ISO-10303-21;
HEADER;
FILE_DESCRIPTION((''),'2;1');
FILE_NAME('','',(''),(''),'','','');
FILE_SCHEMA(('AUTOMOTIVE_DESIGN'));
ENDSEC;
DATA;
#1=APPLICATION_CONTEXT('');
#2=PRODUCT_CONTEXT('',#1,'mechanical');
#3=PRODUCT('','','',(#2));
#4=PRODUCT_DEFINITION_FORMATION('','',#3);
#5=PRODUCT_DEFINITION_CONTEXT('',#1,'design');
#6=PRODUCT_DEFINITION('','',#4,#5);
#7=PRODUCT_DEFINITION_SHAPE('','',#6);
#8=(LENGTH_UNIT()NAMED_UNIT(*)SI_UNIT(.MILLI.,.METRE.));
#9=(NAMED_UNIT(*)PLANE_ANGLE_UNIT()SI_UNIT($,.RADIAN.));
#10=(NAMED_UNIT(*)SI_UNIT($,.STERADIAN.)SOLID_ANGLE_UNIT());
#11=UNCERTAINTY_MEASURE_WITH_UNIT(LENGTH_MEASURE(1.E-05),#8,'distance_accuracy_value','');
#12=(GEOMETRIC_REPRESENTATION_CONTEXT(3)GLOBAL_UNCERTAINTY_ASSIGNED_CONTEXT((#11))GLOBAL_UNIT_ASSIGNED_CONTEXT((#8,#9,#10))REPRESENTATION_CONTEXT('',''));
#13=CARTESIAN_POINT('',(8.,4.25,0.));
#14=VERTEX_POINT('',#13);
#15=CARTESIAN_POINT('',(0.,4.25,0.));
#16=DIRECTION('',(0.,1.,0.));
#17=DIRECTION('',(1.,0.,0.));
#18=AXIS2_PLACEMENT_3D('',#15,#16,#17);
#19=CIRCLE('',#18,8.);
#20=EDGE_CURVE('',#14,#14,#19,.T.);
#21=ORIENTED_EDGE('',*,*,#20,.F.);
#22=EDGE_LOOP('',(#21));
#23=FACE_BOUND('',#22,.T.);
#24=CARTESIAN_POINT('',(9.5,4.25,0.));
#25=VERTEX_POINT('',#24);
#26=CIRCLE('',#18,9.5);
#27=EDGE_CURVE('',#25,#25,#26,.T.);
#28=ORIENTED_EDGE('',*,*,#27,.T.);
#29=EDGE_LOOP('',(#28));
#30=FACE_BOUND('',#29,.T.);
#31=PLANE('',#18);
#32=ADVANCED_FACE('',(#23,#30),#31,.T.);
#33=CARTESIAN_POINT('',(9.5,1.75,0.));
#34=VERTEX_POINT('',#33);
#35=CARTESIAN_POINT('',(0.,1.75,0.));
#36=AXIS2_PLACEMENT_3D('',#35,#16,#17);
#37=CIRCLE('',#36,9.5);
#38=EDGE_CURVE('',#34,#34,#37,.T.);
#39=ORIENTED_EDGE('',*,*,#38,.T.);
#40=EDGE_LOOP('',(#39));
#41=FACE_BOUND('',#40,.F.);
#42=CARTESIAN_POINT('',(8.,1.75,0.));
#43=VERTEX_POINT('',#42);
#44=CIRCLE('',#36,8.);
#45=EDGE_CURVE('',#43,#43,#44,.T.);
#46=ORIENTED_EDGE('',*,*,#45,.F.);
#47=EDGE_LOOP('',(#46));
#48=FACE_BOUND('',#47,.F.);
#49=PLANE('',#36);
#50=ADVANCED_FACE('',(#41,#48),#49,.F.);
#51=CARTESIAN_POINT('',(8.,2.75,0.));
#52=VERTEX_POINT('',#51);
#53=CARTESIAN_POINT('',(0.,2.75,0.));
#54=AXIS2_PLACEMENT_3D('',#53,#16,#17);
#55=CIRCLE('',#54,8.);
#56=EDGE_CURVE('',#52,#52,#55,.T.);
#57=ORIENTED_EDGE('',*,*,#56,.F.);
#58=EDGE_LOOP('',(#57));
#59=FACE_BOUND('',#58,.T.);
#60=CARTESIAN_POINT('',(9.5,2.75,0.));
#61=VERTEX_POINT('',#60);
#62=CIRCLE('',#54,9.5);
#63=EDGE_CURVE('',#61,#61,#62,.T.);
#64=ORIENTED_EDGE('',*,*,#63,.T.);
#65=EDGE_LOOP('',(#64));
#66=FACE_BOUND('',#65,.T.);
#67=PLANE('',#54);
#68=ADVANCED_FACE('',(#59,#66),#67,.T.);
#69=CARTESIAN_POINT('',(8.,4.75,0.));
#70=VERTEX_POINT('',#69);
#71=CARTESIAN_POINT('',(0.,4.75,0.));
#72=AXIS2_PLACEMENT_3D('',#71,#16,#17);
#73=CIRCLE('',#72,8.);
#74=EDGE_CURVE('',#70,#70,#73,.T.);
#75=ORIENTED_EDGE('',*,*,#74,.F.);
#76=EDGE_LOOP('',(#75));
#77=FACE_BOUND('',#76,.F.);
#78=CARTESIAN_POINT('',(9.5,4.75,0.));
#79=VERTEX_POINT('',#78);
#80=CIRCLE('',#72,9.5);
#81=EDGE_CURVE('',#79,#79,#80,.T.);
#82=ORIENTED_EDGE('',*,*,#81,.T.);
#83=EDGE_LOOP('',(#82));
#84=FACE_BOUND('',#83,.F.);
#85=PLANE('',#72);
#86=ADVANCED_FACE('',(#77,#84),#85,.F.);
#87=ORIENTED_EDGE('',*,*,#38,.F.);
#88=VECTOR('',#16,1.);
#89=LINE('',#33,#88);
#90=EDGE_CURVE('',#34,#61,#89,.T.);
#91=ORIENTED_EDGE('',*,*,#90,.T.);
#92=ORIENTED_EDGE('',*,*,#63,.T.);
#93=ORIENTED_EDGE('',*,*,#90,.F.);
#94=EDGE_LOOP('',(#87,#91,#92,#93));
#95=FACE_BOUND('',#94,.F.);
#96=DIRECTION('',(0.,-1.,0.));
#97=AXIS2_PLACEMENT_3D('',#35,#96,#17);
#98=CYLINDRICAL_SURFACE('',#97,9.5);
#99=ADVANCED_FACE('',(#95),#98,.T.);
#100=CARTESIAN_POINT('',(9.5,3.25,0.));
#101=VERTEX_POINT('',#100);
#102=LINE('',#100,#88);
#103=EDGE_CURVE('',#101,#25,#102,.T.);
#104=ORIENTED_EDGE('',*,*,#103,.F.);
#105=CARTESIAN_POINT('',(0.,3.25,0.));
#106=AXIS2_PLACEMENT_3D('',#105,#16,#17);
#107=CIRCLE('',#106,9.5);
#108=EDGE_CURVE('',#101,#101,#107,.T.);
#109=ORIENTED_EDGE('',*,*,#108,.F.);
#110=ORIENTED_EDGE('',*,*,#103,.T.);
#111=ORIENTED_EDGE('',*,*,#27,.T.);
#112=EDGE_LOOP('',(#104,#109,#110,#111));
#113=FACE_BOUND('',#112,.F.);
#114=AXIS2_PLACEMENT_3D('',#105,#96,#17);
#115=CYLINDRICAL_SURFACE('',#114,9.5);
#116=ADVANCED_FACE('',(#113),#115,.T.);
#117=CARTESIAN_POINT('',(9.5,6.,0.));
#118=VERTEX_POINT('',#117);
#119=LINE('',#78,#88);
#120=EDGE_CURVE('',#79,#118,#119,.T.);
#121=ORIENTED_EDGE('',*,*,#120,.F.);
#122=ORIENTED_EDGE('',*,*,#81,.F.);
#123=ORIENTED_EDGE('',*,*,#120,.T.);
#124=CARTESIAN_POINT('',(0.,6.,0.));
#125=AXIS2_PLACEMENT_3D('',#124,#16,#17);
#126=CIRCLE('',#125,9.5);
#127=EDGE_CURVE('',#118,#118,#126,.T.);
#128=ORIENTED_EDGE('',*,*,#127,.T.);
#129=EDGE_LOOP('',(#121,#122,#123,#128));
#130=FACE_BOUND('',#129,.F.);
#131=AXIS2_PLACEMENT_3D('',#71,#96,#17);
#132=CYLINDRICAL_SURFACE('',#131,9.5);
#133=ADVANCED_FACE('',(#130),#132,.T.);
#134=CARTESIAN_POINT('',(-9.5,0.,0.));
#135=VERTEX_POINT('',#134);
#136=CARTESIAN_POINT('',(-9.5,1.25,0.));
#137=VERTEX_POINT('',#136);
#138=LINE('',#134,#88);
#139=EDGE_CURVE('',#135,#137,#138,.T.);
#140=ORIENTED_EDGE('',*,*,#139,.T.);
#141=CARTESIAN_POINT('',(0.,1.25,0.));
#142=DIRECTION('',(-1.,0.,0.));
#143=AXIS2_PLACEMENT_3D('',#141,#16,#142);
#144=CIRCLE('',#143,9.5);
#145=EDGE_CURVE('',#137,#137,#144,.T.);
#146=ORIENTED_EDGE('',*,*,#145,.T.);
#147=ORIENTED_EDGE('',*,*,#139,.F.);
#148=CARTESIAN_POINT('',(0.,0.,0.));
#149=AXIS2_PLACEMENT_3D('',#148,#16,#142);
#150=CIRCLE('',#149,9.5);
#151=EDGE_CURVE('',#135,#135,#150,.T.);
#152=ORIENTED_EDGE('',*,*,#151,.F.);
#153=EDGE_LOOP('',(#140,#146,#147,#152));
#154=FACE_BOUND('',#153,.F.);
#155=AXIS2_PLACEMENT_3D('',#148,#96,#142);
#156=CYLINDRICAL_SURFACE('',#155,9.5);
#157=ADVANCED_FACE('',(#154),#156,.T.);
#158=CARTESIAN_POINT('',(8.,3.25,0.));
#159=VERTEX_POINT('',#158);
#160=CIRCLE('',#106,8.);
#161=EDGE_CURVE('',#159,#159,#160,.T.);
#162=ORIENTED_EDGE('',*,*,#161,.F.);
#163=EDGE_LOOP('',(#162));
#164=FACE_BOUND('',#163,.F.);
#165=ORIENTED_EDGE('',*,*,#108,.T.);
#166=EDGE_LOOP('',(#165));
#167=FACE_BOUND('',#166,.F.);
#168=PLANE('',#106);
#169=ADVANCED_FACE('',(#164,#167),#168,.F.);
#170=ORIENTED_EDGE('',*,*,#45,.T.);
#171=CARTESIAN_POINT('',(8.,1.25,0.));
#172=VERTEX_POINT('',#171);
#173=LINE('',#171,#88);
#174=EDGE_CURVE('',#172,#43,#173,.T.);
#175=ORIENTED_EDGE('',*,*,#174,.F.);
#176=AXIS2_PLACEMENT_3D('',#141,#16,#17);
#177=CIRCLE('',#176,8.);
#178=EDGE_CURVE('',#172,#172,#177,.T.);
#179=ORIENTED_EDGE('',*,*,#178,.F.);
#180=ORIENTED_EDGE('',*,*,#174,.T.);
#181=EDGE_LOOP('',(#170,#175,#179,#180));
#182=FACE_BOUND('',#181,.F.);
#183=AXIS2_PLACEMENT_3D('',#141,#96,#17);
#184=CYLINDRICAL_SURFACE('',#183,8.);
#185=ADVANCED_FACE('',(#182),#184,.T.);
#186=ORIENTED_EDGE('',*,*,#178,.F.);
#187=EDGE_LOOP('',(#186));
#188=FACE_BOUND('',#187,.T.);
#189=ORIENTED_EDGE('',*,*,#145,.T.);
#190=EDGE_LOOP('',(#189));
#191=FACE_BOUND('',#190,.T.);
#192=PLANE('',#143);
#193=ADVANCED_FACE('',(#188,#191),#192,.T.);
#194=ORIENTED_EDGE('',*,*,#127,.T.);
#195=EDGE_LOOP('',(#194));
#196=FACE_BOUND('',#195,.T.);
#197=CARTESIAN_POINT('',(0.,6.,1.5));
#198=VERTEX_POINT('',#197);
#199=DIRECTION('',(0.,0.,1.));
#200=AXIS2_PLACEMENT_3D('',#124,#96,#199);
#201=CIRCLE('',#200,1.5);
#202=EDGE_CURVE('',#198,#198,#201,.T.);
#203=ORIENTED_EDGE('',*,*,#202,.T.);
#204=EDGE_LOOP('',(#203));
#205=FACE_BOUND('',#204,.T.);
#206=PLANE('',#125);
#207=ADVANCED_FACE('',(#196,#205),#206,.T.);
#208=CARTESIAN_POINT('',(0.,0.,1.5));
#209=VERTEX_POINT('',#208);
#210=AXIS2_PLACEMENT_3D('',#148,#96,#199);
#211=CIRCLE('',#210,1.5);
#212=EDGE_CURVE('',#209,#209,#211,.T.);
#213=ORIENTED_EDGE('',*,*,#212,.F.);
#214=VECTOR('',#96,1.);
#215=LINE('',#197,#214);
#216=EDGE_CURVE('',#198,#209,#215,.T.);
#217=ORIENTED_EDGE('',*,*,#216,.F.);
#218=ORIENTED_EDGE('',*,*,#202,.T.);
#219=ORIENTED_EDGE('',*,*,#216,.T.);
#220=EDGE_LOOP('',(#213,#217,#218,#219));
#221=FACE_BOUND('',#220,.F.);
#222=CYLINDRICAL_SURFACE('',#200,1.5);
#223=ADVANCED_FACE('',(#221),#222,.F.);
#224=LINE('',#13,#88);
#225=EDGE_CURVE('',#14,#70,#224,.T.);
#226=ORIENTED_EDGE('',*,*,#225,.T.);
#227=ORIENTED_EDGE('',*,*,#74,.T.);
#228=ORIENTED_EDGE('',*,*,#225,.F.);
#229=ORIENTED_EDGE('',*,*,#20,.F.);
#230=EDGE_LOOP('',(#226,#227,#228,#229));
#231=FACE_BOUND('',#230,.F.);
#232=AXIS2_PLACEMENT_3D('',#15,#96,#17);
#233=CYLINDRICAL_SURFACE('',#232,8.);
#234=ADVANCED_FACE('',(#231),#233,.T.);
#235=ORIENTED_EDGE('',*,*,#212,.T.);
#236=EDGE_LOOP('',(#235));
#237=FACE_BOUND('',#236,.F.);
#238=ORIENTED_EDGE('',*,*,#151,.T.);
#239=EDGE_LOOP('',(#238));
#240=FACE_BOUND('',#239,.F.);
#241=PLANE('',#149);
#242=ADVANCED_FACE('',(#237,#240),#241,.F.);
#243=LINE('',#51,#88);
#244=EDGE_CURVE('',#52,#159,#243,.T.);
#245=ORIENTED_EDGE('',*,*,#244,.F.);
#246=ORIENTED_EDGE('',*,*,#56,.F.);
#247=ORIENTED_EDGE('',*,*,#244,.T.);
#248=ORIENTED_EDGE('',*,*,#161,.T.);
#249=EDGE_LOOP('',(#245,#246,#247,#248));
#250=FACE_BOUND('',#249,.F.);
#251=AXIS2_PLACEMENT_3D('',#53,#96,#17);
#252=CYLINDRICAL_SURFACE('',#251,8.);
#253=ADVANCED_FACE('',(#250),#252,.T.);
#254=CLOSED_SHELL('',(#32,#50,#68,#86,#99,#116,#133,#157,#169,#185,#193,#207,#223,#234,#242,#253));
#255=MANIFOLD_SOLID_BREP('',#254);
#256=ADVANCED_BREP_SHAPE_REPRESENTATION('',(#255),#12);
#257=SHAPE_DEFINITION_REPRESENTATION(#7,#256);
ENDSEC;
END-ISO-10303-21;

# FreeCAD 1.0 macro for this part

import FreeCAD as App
import Part
import Sketcher

V = App.Vector

doc = App.newDocument("Part")
body = doc.addObject("PartDesign::Body", "Body")

# Sketch on XZ plane
sketch1 = body.newObject("Sketcher::SketchObject", "Sketch")
sketch1.AttachmentSupport = (doc.getObject("XZ_Plane"), [""])
sketch1.MapMode = "FlatFace"
sketch1.addGeometry(Part.Circle(V(0, 0, 0), V(0, 0, 1), 10), False)
sketch1.addConstraint(Sketcher.Constraint("Coincident", 0, 3, -1, 1))
sketch1.addConstraint(Sketcher.Constraint("Diameter", 0, 19.0))
pad1 = body.newObject("PartDesign::Pad", "Pad")
pad1.Profile = sketch1
pad1.Length = 1.25
pad1.Reversed = True

# Sketch on XZ plane
sketch2 = body.newObject("Sketcher::SketchObject", "Sketch001")
sketch2.AttachmentSupport = (doc.getObject("XZ_Plane"), [""])
sketch2.MapMode = "FlatFace"
sketch2.AttachmentOffset = App.Placement(V(0, 0, -1.25), App.Rotation())
sketch2.addGeometry(Part.Circle(V(0, 0, 0), V(0, 0, 1), 8), False)
sketch2.addConstraint(Sketcher.Constraint("Coincident", 0, 3, -1, 1))
sketch2.addConstraint(Sketcher.Constraint("Diameter", 0, 16.0))
pad2 = body.newObject("PartDesign::Pad", "Pad001")
pad2.Profile = sketch2
pad2.Length = 0.5
pad2.Reversed = True

# Sketch on XZ plane
sketch3 = body.newObject("Sketcher::SketchObject", "Sketch002")
sketch3.AttachmentSupport = (doc.getObject("XZ_Plane"), [""])
sketch3.MapMode = "FlatFace"
sketch3.AttachmentOffset = App.Placement(V(0, 0, -1.75), App.Rotation())
sketch3.addGeometry(Part.Circle(V(0, 0, 0), V(0, 0, 1), 10), False)
sketch3.addConstraint(Sketcher.Constraint("Coincident", 0, 3, -1, 1))
sketch3.addConstraint(Sketcher.Constraint("Diameter", 0, 19.0))
pad3 = body.newObject("PartDesign::Pad", "Pad002")
pad3.Profile = sketch3
pad3.Length = 1
pad3.Reversed = True

# Sketch on XZ plane
sketch4 = body.newObject("Sketcher::SketchObject", "Sketch003")
sketch4.AttachmentSupport = (doc.getObject("XZ_Plane"), [""])
sketch4.MapMode = "FlatFace"
sketch4.AttachmentOffset = App.Placement(V(0, 0, -2.75), App.Rotation())
sketch4.addGeometry(Part.Circle(V(0, 0, 0), V(0, 0, 1), 8), False)
sketch4.addConstraint(Sketcher.Constraint("Coincident", 0, 3, -1, 1))
sketch4.addConstraint(Sketcher.Constraint("Diameter", 0, 16.0))
pad4 = body.newObject("PartDesign::Pad", "Pad003")
pad4.Profile = sketch4
pad4.Length = 0.5
pad4.Reversed = True

# Sketch on XZ plane
sketch5 = body.newObject("Sketcher::SketchObject", "Sketch004")
sketch5.AttachmentSupport = (doc.getObject("XZ_Plane"), [""])
sketch5.MapMode = "FlatFace"
sketch5.AttachmentOffset = App.Placement(V(0, 0, -3.25), App.Rotation())
sketch5.addGeometry(Part.Circle(V(0, 0, 0), V(0, 0, 1), 10), False)
sketch5.addConstraint(Sketcher.Constraint("Coincident", 0, 3, -1, 1))
sketch5.addConstraint(Sketcher.Constraint("Diameter", 0, 19.0))
pad5 = body.newObject("PartDesign::Pad", "Pad004")
pad5.Profile = sketch5
pad5.Length = 1
pad5.Reversed = True

# Sketch on XZ plane
sketch6 = body.newObject("Sketcher::SketchObject", "Sketch005")
sketch6.AttachmentSupport = (doc.getObject("XZ_Plane"), [""])
sketch6.MapMode = "FlatFace"
sketch6.AttachmentOffset = App.Placement(V(0, 0, -4.25), App.Rotation())
sketch6.addGeometry(Part.Circle(V(0, 0, 0), V(0, 0, 1), 8), False)
sketch6.addConstraint(Sketcher.Constraint("Coincident", 0, 3, -1, 1))
sketch6.addConstraint(Sketcher.Constraint("Diameter", 0, 16.0))
pad6 = body.newObject("PartDesign::Pad", "Pad005")
pad6.Profile = sketch6
pad6.Length = 0.5
pad6.Reversed = True

# Sketch on XZ plane
sketch7 = body.newObject("Sketcher::SketchObject", "Sketch006")
sketch7.AttachmentSupport = (doc.getObject("XZ_Plane"), [""])
sketch7.MapMode = "FlatFace"
sketch7.AttachmentOffset = App.Placement(V(0, 0, -4.75), App.Rotation())
sketch7.addGeometry(Part.Circle(V(0, 0, 0), V(0, 0, 1), 10), False)
sketch7.addConstraint(Sketcher.Constraint("Coincident", 0, 3, -1, 1))
sketch7.addConstraint(Sketcher.Constraint("Diameter", 0, 19.0))
pad7 = body.newObject("PartDesign::Pad", "Pad006")
pad7.Profile = sketch7
pad7.Length = 1.25
pad7.Reversed = True

# Sketch on XZ plane
sketch8 = body.newObject("Sketcher::SketchObject", "Sketch007")
sketch8.AttachmentSupport = (doc.getObject("XZ_Plane"), [""])
sketch8.MapMode = "FlatFace"
sketch8.AttachmentOffset = App.Placement(V(0, 0, -6), App.Rotation())
sketch8.addGeometry(Part.Circle(V(0, 0, 0), V(0, 0, 1), 1.5), False)
sketch8.addConstraint(Sketcher.Constraint("Coincident", 0, 3, -1, 1))
sketch8.addConstraint(Sketcher.Constraint("Diameter", 0, 3.0))
doc.recompute()
hole = body.newObject("PartDesign::Hole", "Hole")
hole.Profile = sketch8
hole.ThreadType = "None"
hole.Diameter = 3
hole.DepthType = "ThroughAll"
hole.Reversed = True

doc.recompute()
